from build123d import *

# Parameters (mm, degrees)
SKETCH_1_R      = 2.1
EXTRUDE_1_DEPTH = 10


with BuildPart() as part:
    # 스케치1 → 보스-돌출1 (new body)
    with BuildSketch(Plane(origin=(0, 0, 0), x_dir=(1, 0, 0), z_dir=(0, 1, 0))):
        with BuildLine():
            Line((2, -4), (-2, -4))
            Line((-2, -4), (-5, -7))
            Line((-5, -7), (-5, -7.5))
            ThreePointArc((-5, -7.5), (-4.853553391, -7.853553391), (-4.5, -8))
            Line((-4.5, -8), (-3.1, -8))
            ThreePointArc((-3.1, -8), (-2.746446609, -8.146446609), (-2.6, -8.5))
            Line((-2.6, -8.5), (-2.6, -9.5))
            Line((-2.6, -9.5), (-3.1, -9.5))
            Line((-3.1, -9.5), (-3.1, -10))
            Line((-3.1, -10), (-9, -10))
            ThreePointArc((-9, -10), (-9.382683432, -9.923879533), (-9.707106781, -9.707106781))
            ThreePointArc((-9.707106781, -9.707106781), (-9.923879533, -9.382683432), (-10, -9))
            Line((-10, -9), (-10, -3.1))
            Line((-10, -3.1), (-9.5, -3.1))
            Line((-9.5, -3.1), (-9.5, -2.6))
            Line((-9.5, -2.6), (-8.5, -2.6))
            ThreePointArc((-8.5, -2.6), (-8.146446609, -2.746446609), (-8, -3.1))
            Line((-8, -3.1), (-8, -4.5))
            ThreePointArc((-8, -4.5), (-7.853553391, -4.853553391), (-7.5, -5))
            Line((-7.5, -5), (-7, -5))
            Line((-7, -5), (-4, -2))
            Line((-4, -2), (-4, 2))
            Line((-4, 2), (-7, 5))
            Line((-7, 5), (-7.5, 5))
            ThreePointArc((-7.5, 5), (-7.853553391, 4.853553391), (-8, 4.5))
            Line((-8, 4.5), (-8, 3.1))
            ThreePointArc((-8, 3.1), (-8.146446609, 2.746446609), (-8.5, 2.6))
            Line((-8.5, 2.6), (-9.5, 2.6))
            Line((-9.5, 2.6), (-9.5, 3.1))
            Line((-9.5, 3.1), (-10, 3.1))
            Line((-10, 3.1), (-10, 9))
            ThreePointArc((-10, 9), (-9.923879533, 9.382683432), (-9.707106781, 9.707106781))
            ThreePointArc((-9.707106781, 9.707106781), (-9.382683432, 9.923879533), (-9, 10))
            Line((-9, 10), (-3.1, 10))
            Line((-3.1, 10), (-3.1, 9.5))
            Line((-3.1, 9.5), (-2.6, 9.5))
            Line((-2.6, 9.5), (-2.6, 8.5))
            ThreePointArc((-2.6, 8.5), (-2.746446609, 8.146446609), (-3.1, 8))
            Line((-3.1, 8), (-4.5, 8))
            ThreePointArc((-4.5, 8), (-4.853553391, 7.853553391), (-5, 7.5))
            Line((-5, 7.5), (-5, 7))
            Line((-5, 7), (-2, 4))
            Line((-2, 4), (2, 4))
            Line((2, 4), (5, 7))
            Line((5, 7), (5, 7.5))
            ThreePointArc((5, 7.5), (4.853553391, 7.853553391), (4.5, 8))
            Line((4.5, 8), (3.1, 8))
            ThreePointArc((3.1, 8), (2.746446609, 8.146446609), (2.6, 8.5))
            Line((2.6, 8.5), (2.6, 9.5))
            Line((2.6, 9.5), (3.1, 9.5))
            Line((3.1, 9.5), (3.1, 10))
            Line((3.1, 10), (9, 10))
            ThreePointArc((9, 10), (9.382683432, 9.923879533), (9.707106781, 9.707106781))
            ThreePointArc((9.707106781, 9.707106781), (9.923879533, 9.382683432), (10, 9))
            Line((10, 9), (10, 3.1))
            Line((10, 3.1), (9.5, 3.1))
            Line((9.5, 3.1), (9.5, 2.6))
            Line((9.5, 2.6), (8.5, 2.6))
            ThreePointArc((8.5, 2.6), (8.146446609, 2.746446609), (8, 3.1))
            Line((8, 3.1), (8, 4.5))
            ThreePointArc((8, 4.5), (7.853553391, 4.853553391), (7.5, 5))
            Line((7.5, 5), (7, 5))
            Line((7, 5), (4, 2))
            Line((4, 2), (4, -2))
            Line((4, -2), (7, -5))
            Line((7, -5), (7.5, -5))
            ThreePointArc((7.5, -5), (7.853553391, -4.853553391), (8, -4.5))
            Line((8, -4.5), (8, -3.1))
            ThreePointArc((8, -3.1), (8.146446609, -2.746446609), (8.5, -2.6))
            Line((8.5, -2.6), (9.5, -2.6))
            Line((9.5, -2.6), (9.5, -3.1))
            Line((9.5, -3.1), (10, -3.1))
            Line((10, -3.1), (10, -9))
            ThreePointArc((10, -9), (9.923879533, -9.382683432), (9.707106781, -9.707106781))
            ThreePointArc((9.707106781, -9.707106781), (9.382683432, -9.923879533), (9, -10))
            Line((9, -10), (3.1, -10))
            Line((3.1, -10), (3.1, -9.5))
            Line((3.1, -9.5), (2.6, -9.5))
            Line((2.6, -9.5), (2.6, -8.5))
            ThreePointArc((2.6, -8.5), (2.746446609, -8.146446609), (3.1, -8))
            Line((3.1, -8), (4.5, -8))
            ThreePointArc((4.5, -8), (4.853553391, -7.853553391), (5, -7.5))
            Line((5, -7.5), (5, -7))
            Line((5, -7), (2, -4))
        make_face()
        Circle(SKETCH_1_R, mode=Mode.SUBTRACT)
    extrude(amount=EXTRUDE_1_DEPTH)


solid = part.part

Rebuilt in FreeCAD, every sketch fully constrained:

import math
import FreeCAD as App
import Part
import Sketcher
from FreeCAD import Vector

doc = App.newDocument("Part")
body = doc.addObject("PartDesign::Body", "Body")

# Sketch on XZ plane
sketch1 = body.newObject("Sketcher::SketchObject", "Sketch")
sketch1.AttachmentSupport = (doc.getObject("XZ_Plane"), [""])
sketch1.MapMode = "FlatFace"
sketch1.addGeometry([
    Part.LineSegment(Vector(-2, 4, 0), Vector(2, 4, 0)),  # 0
    Part.LineSegment(Vector(2, 4, 0), Vector(5, 7, 0)),  # 1
    Part.LineSegment(Vector(5, 7, 0), Vector(5, 7.5, 0)),  # 2
    Part.ArcOfCircle(Part.Circle(Vector(4.5, 7.5, 0), Vector(0, 0, 1), 0.5), math.radians(0), math.radians(90)),  # 3
    Part.LineSegment(Vector(4.5, 8, 0), Vector(3.1, 8, 0)),  # 4
    Part.ArcOfCircle(Part.Circle(Vector(3.1, 8.5, 0), Vector(0, 0, 1), 0.5), math.radians(180), math.radians(270)),  # 5
    Part.LineSegment(Vector(2.6, 8.5, 0), Vector(2.6, 9.5, 0)),  # 6
    Part.LineSegment(Vector(2.6, 9.5, 0), Vector(3.1, 9.5, 0)),  # 7
    Part.LineSegment(Vector(3.1, 9.5, 0), Vector(3.1, 10, 0)),  # 8
    Part.LineSegment(Vector(3.1, 10, 0), Vector(9, 10, 0)),  # 9
    Part.ArcOfCircle(Part.Circle(Vector(9, 9, 0), Vector(0, 0, 1), 1), math.radians(45), math.radians(90)),  # 10
    Part.ArcOfCircle(Part.Circle(Vector(9, 9, 0), Vector(0, 0, 1), 1), math.radians(0), math.radians(45)),  # 11
    Part.LineSegment(Vector(10, 9, 0), Vector(10, 3.1, 0)),  # 12
    Part.LineSegment(Vector(10, 3.1, 0), Vector(9.5, 3.1, 0)),  # 13
    Part.LineSegment(Vector(9.5, 3.1, 0), Vector(9.5, 2.6, 0)),  # 14
    Part.LineSegment(Vector(9.5, 2.6, 0), Vector(8.5, 2.6, 0)),  # 15
    Part.ArcOfCircle(Part.Circle(Vector(8.5, 3.1, 0), Vector(0, 0, 1), 0.5), math.radians(180), math.radians(270)),  # 16
    Part.LineSegment(Vector(8, 3.1, 0), Vector(8, 4.5, 0)),  # 17
    Part.ArcOfCircle(Part.Circle(Vector(7.5, 4.5, 0), Vector(0, 0, 1), 0.5), math.radians(0), math.radians(90)),  # 18
    Part.LineSegment(Vector(7.5, 5, 0), Vector(7, 5, 0)),  # 19
    Part.LineSegment(Vector(7, 5, 0), Vector(4, 2, 0)),  # 20
    Part.LineSegment(Vector(4, 2, 0), Vector(4, -2, 0)),  # 21
    Part.LineSegment(Vector(4, -2, 0), Vector(7, -5, 0)),  # 22
    Part.LineSegment(Vector(7, -5, 0), Vector(7.5, -5, 0)),  # 23
    Part.ArcOfCircle(Part.Circle(Vector(7.5, -4.5, 0), Vector(0, 0, 1), 0.5), math.radians(-90), math.radians(0)),  # 24
    Part.LineSegment(Vector(8, -4.5, 0), Vector(8, -3.1, 0)),  # 25
    Part.ArcOfCircle(Part.Circle(Vector(8.5, -3.1, 0), Vector(0, 0, 1), 0.5), math.radians(90), math.radians(180)),  # 26
    Part.LineSegment(Vector(8.5, -2.6, 0), Vector(9.5, -2.6, 0)),  # 27
    Part.LineSegment(Vector(9.5, -2.6, 0), Vector(9.5, -3.1, 0)),  # 28
    Part.LineSegment(Vector(9.5, -3.1, 0), Vector(10, -3.1, 0)),  # 29
    Part.LineSegment(Vector(10, -3.1, 0), Vector(10, -9, 0)),  # 30
    Part.ArcOfCircle(Part.Circle(Vector(9, -9, 0), Vector(0, 0, 1), 1), math.radians(-45), math.radians(0)),  # 31
    Part.ArcOfCircle(Part.Circle(Vector(9, -9, 0), Vector(0, 0, 1), 1), math.radians(-90), math.radians(-45)),  # 32
    Part.LineSegment(Vector(9, -10, 0), Vector(3.1, -10, 0)),  # 33
    Part.LineSegment(Vector(3.1, -10, 0), Vector(3.1, -9.5, 0)),  # 34
    Part.LineSegment(Vector(3.1, -9.5, 0), Vector(2.6, -9.5, 0)),  # 35
    Part.LineSegment(Vector(2.6, -9.5, 0), Vector(2.6, -8.5, 0)),  # 36
    Part.ArcOfCircle(Part.Circle(Vector(3.1, -8.5, 0), Vector(0, 0, 1), 0.5), math.radians(90), math.radians(180)),  # 37
    Part.LineSegment(Vector(3.1, -8, 0), Vector(4.5, -8, 0)),  # 38
    Part.ArcOfCircle(Part.Circle(Vector(4.5, -7.5, 0), Vector(0, 0, 1), 0.5), math.radians(-90), math.radians(0)),  # 39
    Part.LineSegment(Vector(5, -7.5, 0), Vector(5, -7, 0)),  # 40
    Part.LineSegment(Vector(5, -7, 0), Vector(2, -4, 0)),  # 41
    Part.LineSegment(Vector(2, -4, 0), Vector(-2, -4, 0)),  # 42
    Part.LineSegment(Vector(-2, -4, 0), Vector(-5, -7, 0)),  # 43
    Part.LineSegment(Vector(-5, -7, 0), Vector(-5, -7.5, 0)),  # 44
    Part.ArcOfCircle(Part.Circle(Vector(-4.5, -7.5, 0), Vector(0, 0, 1), 0.5), math.radians(180), math.radians(270)),  # 45
    Part.LineSegment(Vector(-4.5, -8, 0), Vector(-3.1, -8, 0)),  # 46
    Part.ArcOfCircle(Part.Circle(Vector(-3.1, -8.5, 0), Vector(0, 0, 1), 0.5), math.radians(0), math.radians(90)),  # 47
    Part.LineSegment(Vector(-2.6, -8.5, 0), Vector(-2.6, -9.5, 0)),  # 48
    Part.LineSegment(Vector(-2.6, -9.5, 0), Vector(-3.1, -9.5, 0)),  # 49
    Part.LineSegment(Vector(-3.1, -9.5, 0), Vector(-3.1, -10, 0)),  # 50
    Part.LineSegment(Vector(-3.1, -10, 0), Vector(-9, -10, 0)),  # 51
    Part.ArcOfCircle(Part.Circle(Vector(-9, -9, 0), Vector(0, 0, 1), 1), math.radians(-135), math.radians(-90)),  # 52
    Part.ArcOfCircle(Part.Circle(Vector(-9, -9, 0), Vector(0, 0, 1), 1), math.radians(180), math.radians(225)),  # 53
    Part.LineSegment(Vector(-10, -9, 0), Vector(-10, -3.1, 0)),  # 54
    Part.LineSegment(Vector(-10, -3.1, 0), Vector(-9.5, -3.1, 0)),  # 55
    Part.LineSegment(Vector(-9.5, -3.1, 0), Vector(-9.5, -2.6, 0)),  # 56
    Part.LineSegment(Vector(-9.5, -2.6, 0), Vector(-8.5, -2.6, 0)),  # 57
    Part.ArcOfCircle(Part.Circle(Vector(-8.5, -3.1, 0), Vector(0, 0, 1), 0.5), math.radians(0), math.radians(90)),  # 58
    Part.LineSegment(Vector(-8, -3.1, 0), Vector(-8, -4.5, 0)),  # 59
    Part.ArcOfCircle(Part.Circle(Vector(-7.5, -4.5, 0), Vector(0, 0, 1), 0.5), math.radians(180), math.radians(270)),  # 60
    Part.LineSegment(Vector(-7.5, -5, 0), Vector(-7, -5, 0)),  # 61
    Part.LineSegment(Vector(-7, -5, 0), Vector(-4, -2, 0)),  # 62
    Part.LineSegment(Vector(-4, -2, 0), Vector(-4, 2, 0)),  # 63
    Part.LineSegment(Vector(-4, 2, 0), Vector(-7, 5, 0)),  # 64
    Part.LineSegment(Vector(-7, 5, 0), Vector(-7.5, 5, 0)),  # 65
    Part.ArcOfCircle(Part.Circle(Vector(-7.5, 4.5, 0), Vector(0, 0, 1), 0.5), math.radians(90), math.radians(180)),  # 66
    Part.LineSegment(Vector(-8, 4.5, 0), Vector(-8, 3.1, 0)),  # 67
    Part.ArcOfCircle(Part.Circle(Vector(-8.5, 3.1, 0), Vector(0, 0, 1), 0.5), math.radians(-90), math.radians(0)),  # 68
    Part.LineSegment(Vector(-8.5, 2.6, 0), Vector(-9.5, 2.6, 0)),  # 69
    Part.LineSegment(Vector(-9.5, 2.6, 0), Vector(-9.5, 3.1, 0)),  # 70
    Part.LineSegment(Vector(-9.5, 3.1, 0), Vector(-10, 3.1, 0)),  # 71
    Part.LineSegment(Vector(-10, 3.1, 0), Vector(-10, 9, 0)),  # 72
    Part.ArcOfCircle(Part.Circle(Vector(-9, 9, 0), Vector(0, 0, 1), 1), math.radians(135), math.radians(180)),  # 73
    Part.ArcOfCircle(Part.Circle(Vector(-9, 9, 0), Vector(0, 0, 1), 1), math.radians(90), math.radians(135)),  # 74
    Part.LineSegment(Vector(-9, 10, 0), Vector(-3.1, 10, 0)),  # 75
    Part.LineSegment(Vector(-3.1, 10, 0), Vector(-3.1, 9.5, 0)),  # 76
    Part.LineSegment(Vector(-3.1, 9.5, 0), Vector(-2.6, 9.5, 0)),  # 77
    Part.LineSegment(Vector(-2.6, 9.5, 0), Vector(-2.6, 8.5, 0)),  # 78
    Part.ArcOfCircle(Part.Circle(Vector(-3.1, 8.5, 0), Vector(0, 0, 1), 0.5), math.radians(-90), math.radians(0)),  # 79
    Part.LineSegment(Vector(-3.1, 8, 0), Vector(-4.5, 8, 0)),  # 80
    Part.ArcOfCircle(Part.Circle(Vector(-4.5, 7.5, 0), Vector(0, 0, 1), 0.5), math.radians(90), math.radians(180)),  # 81
    Part.LineSegment(Vector(-5, 7.5, 0), Vector(-5, 7, 0)),  # 82
    Part.LineSegment(Vector(-5, 7, 0), Vector(-2, 4, 0)),  # 83
    Part.Circle(Vector(0, 0, 0), Vector(0, 0, 1), 2.1),  # 84
], False)
sketch1.addConstraint([
    Sketcher.Constraint("Coincident", 0, 2, 1, 1),
    Sketcher.Constraint("Coincident", 1, 2, 2, 1),
    Sketcher.Constraint("Tangent", 2, 2, 3, 1),
    Sketcher.Constraint("Tangent", 3, 2, 4, 1),
    Sketcher.Constraint("Tangent", 4, 2, 5, 2),
    Sketcher.Constraint("Tangent", 5, 1, 6, 1),
    Sketcher.Constraint("Coincident", 6, 2, 7, 1),
    Sketcher.Constraint("Coincident", 7, 2, 8, 1),
    Sketcher.Constraint("Coincident", 8, 2, 9, 1),
    Sketcher.Constraint("Tangent", 9, 2, 10, 2),
    Sketcher.Constraint("Tangent", 10, 1, 11, 2),
    Sketcher.Constraint("Tangent", 11, 1, 12, 1),
    Sketcher.Constraint("Coincident", 12, 2, 13, 1),
    Sketcher.Constraint("Coincident", 13, 2, 14, 1),
    Sketcher.Constraint("Coincident", 14, 2, 15, 1),
    Sketcher.Constraint("Tangent", 15, 2, 16, 2),
    Sketcher.Constraint("Tangent", 16, 1, 17, 1),
    Sketcher.Constraint("Tangent", 17, 2, 18, 1),
    Sketcher.Constraint("Tangent", 18, 2, 19, 1),
    Sketcher.Constraint("Coincident", 19, 2, 20, 1),
    Sketcher.Constraint("Coincident", 20, 2, 21, 1),
    Sketcher.Constraint("Coincident", 21, 2, 22, 1),
    Sketcher.Constraint("Coincident", 22, 2, 23, 1),
    Sketcher.Constraint("Tangent", 23, 2, 24, 1),
    Sketcher.Constraint("Tangent", 24, 2, 25, 1),
    Sketcher.Constraint("Tangent", 25, 2, 26, 2),
    Sketcher.Constraint("Tangent", 26, 1, 27, 1),
    Sketcher.Constraint("Coincident", 27, 2, 28, 1),
    Sketcher.Constraint("Coincident", 28, 2, 29, 1),
    Sketcher.Constraint("Coincident", 29, 2, 30, 1),
    Sketcher.Constraint("Tangent", 30, 2, 31, 2),
    Sketcher.Constraint("Tangent", 31, 1, 32, 2),
    Sketcher.Constraint("Tangent", 32, 1, 33, 1),
    Sketcher.Constraint("Coincident", 33, 2, 34, 1),
    Sketcher.Constraint("Coincident", 34, 2, 35, 1),
    Sketcher.Constraint("Coincident", 35, 2, 36, 1),
    Sketcher.Constraint("Tangent", 36, 2, 37, 2),
    Sketcher.Constraint("Tangent", 37, 1, 38, 1),
    Sketcher.Constraint("Tangent", 38, 2, 39, 1),
    Sketcher.Constraint("Tangent", 39, 2, 40, 1),
    Sketcher.Constraint("Coincident", 40, 2, 41, 1),
    Sketcher.Constraint("Coincident", 41, 2, 42, 1),
    Sketcher.Constraint("Coincident", 42, 2, 43, 1),
    Sketcher.Constraint("Coincident", 43, 2, 44, 1),
    Sketcher.Constraint("Tangent", 44, 2, 45, 1),
    Sketcher.Constraint("Tangent", 45, 2, 46, 1),
    Sketcher.Constraint("Tangent", 46, 2, 47, 2),
    Sketcher.Constraint("Tangent", 47, 1, 48, 1),
    Sketcher.Constraint("Coincident", 48, 2, 49, 1),
    Sketcher.Constraint("Coincident", 49, 2, 50, 1),
    Sketcher.Constraint("Coincident", 50, 2, 51, 1),
    Sketcher.Constraint("Tangent", 51, 2, 52, 2),
    Sketcher.Constraint("Tangent", 52, 1, 53, 2),
    Sketcher.Constraint("Tangent", 53, 1, 54, 1),
    Sketcher.Constraint("Coincident", 54, 2, 55, 1),
    Sketcher.Constraint("Coincident", 55, 2, 56, 1),
    Sketcher.Constraint("Coincident", 56, 2, 57, 1),
    Sketcher.Constraint("Tangent", 57, 2, 58, 2),
    Sketcher.Constraint("Tangent", 58, 1, 59, 1),
    Sketcher.Constraint("Tangent", 59, 2, 60, 1),
    Sketcher.Constraint("Tangent", 60, 2, 61, 1),
    Sketcher.Constraint("Coincident", 61, 2, 62, 1),
    Sketcher.Constraint("Coincident", 62, 2, 63, 1),
    Sketcher.Constraint("Coincident", 63, 2, 64, 1),
    Sketcher.Constraint("Coincident", 64, 2, 65, 1),
    Sketcher.Constraint("Tangent", 65, 2, 66, 1),
    Sketcher.Constraint("Tangent", 66, 2, 67, 1),
    Sketcher.Constraint("Tangent", 67, 2, 68, 2),
    Sketcher.Constraint("Tangent", 68, 1, 69, 1),
    Sketcher.Constraint("Coincident", 69, 2, 70, 1),
    Sketcher.Constraint("Coincident", 70, 2, 71, 1),
    Sketcher.Constraint("Coincident", 71, 2, 72, 1),
    Sketcher.Constraint("Tangent", 72, 2, 73, 2),
    Sketcher.Constraint("Tangent", 73, 1, 74, 2),
    Sketcher.Constraint("Tangent", 74, 1, 75, 1),
    Sketcher.Constraint("Coincident", 75, 2, 76, 1),
    Sketcher.Constraint("Coincident", 76, 2, 77, 1),
    Sketcher.Constraint("Coincident", 77, 2, 78, 1),
    Sketcher.Constraint("Tangent", 78, 2, 79, 2),
    Sketcher.Constraint("Tangent", 79, 1, 80, 1),
    Sketcher.Constraint("Tangent", 80, 2, 81, 1),
    Sketcher.Constraint("Tangent", 81, 2, 82, 1),
    Sketcher.Constraint("Coincident", 82, 2, 83, 1),
    Sketcher.Constraint("Coincident", 83, 2, 0, 1),
    Sketcher.Constraint("Horizontal", 0),
    Sketcher.Constraint("Vertical", 2),
    Sketcher.Constraint("Horizontal", 4),
    Sketcher.Constraint("Vertical", 6),
    Sketcher.Constraint("Horizontal", 7),
    Sketcher.Constraint("Vertical", 8),
    Sketcher.Constraint("Horizontal", 9),
    Sketcher.Constraint("Vertical", 12),
    Sketcher.Constraint("Horizontal", 13),
    Sketcher.Constraint("Vertical", 14),
    Sketcher.Constraint("Horizontal", 15),
    Sketcher.Constraint("Vertical", 17),
    Sketcher.Constraint("Horizontal", 19),
    Sketcher.Constraint("Vertical", 21),
    Sketcher.Constraint("Horizontal", 23),
    Sketcher.Constraint("Vertical", 25),
    Sketcher.Constraint("Horizontal", 27),
    Sketcher.Constraint("Vertical", 28),
    Sketcher.Constraint("Horizontal", 29),
    Sketcher.Constraint("Vertical", 30),
    Sketcher.Constraint("Horizontal", 33),
    Sketcher.Constraint("Vertical", 34),
    Sketcher.Constraint("Horizontal", 35),
    Sketcher.Constraint("Vertical", 36),
    Sketcher.Constraint("Horizontal", 38),
    Sketcher.Constraint("Vertical", 40),
    Sketcher.Constraint("Horizontal", 42),
    Sketcher.Constraint("Vertical", 44),
    Sketcher.Constraint("Horizontal", 46),
    Sketcher.Constraint("Vertical", 48),
    Sketcher.Constraint("Horizontal", 49),
    Sketcher.Constraint("Vertical", 50),
    Sketcher.Constraint("Horizontal", 51),
    Sketcher.Constraint("Vertical", 54),
    Sketcher.Constraint("Horizontal", 55),
    Sketcher.Constraint("Vertical", 56),
    Sketcher.Constraint("Horizontal", 57),
    Sketcher.Constraint("Vertical", 59),
    Sketcher.Constraint("Horizontal", 61),
    Sketcher.Constraint("Vertical", 63),
    Sketcher.Constraint("Horizontal", 65),
    Sketcher.Constraint("Vertical", 67),
    Sketcher.Constraint("Horizontal", 69),
    Sketcher.Constraint("Vertical", 70),
    Sketcher.Constraint("Horizontal", 71),
    Sketcher.Constraint("Vertical", 72),
    Sketcher.Constraint("Horizontal", 75),
    Sketcher.Constraint("Vertical", 76),
    Sketcher.Constraint("Horizontal", 77),
    Sketcher.Constraint("Vertical", 78),
    Sketcher.Constraint("Horizontal", 80),
    Sketcher.Constraint("Vertical", 82),
    Sketcher.Constraint("Coincident", 84, 3, -1, 1),
    Sketcher.Constraint("Equal", 3, 5),
    Sketcher.Constraint("Equal", 10, 11),
    Sketcher.Constraint("Equal", 5, 16),
    Sketcher.Constraint("Equal", 16, 18),
    Sketcher.Constraint("Equal", 18, 24),
    Sketcher.Constraint("Equal", 24, 26),
    Sketcher.Constraint("Equal", 11, 31),
    Sketcher.Constraint("Equal", 31, 32),
    Sketcher.Constraint("Equal", 26, 37),
    Sketcher.Constraint("Equal", 37, 39),
    Sketcher.Constraint("Equal", 39, 45),
    Sketcher.Constraint("Equal", 45, 47),
    Sketcher.Constraint("Equal", 32, 52),
    Sketcher.Constraint("Equal", 52, 53),
    Sketcher.Constraint("Equal", 47, 58),
    Sketcher.Constraint("Equal", 58, 60),
    Sketcher.Constraint("Equal", 60, 66),
    Sketcher.Constraint("Equal", 66, 68),
    Sketcher.Constraint("Equal", 53, 73),
    Sketcher.Constraint("Equal", 73, 74),
    Sketcher.Constraint("Equal", 68, 79),
    Sketcher.Constraint("Equal", 79, 81),
    Sketcher.Constraint("Symmetric", 3, 3, 45, 3, -1, 1),
    Sketcher.Constraint("Symmetric", 10, 3, 52, 3, -1, 1),
    Sketcher.Constraint("Symmetric", 16, 3, 58, 3, -1, 1),
    Sketcher.Constraint("Symmetric", 24, 3, 66, 3, -1, 1),
    Sketcher.Constraint("Symmetric", 31, 3, 73, 3, -1, 1),
    Sketcher.Constraint("Symmetric", 37, 3, 79, 3, -1, 1),
    Sketcher.Constraint("Symmetric", 0, 2, 42, 2, -1, 1),
    Sketcher.Constraint("Symmetric", 6, 2, 48, 2, -1, 1),
    Sketcher.Constraint("Symmetric", 13, 2, 55, 2, -1, 1),
    Sketcher.Constraint("Symmetric", 19, 2, 61, 2, -1, 1),
    Sketcher.Constraint("Symmetric", 20, 2, 62, 2, -1, 1),
    Sketcher.Constraint("Symmetric", 27, 2, 69, 2, -1, 1),
    Sketcher.Constraint("Symmetric", 34, 2, 76, 2, -1, 1),
    Sketcher.Constraint("Symmetric", 40, 2, 82, 2, -1, 1),
    Sketcher.Constraint("Symmetric", 39, 3, 45, 3, -2),
    Sketcher.Constraint("Symmetric", 31, 3, 52, 3, -2),
    Sketcher.Constraint("Symmetric", 26, 3, 58, 3, -2),
    Sketcher.Constraint("Symmetric", 35, 2, 48, 2, -2),
    Sketcher.Constraint("Symmetric", 28, 2, 55, 2, -2),
    Sketcher.Constraint("Symmetric", 22, 2, 61, 2, -2),
    Sketcher.Constraint("Parallel", 1, 20),
    Sketcher.Constraint("Perpendicular", 20, 22),
    Sketcher.Constraint("Parallel", 22, 41),
    Sketcher.Constraint("Perpendicular", 41, 43),
    Sketcher.Constraint("Perpendicular", 62, 64),
    Sketcher.Constraint("Parallel", 64, 83),
    Sketcher.Constraint("Horizontal", 68, 3, 12, 2),
    Sketcher.Constraint("Horizontal", 40, 2, 43, 2),
    Sketcher.Constraint("Horizontal", 31, 1, 52, 1),
    Sketcher.Constraint("Horizontal", 21, 2, 62, 2),
    Sketcher.Constraint("Horizontal", 20, 2, 63, 2),
    Sketcher.Constraint("Horizontal", 67, 2, 70, 2),
    Sketcher.Constraint("Horizontal", 10, 1, 73, 1),
    Sketcher.Constraint("Vertical", 4, 2, 7, 2),
    Sketcher.Constraint("Vertical", 10, 1, 31, 1),
    Sketcher.Constraint("Vertical", 8, 2, 33, 2),
    Sketcher.Constraint("Vertical", 46, 2, 49, 2),
    Sketcher.Constraint("Equal", 7, 13),
    Sketcher.Constraint("Equal", 13, 19),
    Sketcher.Constraint("Equal", 77, 2),
    Sketcher.Constraint("Equal", 69, 6),
    Sketcher.Constraint("Equal", 2, 8),
    Sketcher.Constraint("Equal", 75, 12),
    Sketcher.Constraint("Equal", 80, 17),
    Sketcher.Constraint("Equal", 42, 21),
    Sketcher.Constraint("Equal", 1, 20),
    Sketcher.Constraint("Radius", 10, 1.0),
    Sketcher.Constraint("Diameter", 84, 4.2),
    Sketcher.Constraint("Radius", 3, 0.5),
    Sketcher.Constraint("DistanceX", 0, 1, 0, 2, 4.0),
    Sketcher.Constraint("DistanceX", 15, 2, 15, 1, 1.0),
    Sketcher.Constraint("DistanceX", 4, 2, 4, 1, 1.4),
    Sketcher.Constraint("DistanceX", 9, 1, 9, 2, 5.9),
    Sketcher.Constraint("DistanceX", -1, 1, 10, 3, 9.0),
    Sketcher.Constraint("DistanceX", -1, 1, 10, 1, 9.707107),
])
pad1 = body.newObject("PartDesign::Pad", "Pad")
pad1.Profile = sketch1
pad1.Length = 10
pad1.Reversed = True

doc.recompute()
